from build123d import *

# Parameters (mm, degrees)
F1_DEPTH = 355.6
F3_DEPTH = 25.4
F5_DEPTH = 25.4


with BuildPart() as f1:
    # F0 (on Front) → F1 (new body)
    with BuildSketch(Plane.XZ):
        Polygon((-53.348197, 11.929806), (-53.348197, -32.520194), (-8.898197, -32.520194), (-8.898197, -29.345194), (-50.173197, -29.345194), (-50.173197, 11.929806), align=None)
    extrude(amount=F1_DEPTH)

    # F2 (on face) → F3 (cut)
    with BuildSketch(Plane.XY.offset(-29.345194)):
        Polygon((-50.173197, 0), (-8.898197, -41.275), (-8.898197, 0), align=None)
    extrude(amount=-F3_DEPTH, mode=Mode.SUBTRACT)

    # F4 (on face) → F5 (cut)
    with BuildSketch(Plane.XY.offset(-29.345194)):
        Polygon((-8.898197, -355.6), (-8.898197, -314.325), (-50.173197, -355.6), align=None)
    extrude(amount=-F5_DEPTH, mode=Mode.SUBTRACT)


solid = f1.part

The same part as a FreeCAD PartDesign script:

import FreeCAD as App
import Part
import Sketcher
Q = App.Units.Quantity


def add_polygon(sketch, points):
    """Adds a closed chain of lines whose ends are joined by coincident constraints."""
    first, n = sketch.GeometryCount, len(points)
    for a, b in zip(points, points[1:] + points[:1]):
        sketch.addGeometry(Part.LineSegment(App.Vector(*a, 0), App.Vector(*b, 0)), False)
    for i in range(n):
        sketch.addConstraint(Sketcher.Constraint("Coincident", first + i, 2, first + (i + 1) % n, 1))

doc = App.newDocument("Part")
body = doc.addObject("PartDesign::Body", "Body")

# Sketch on XZ plane
sketch1 = body.newObject("Sketcher::SketchObject", "Sketch")
sketch1.AttachmentSupport = (doc.getObject("XZ_Plane"), [""])
sketch1.MapMode = "FlatFace"
add_polygon(sketch1, [(-53.3, 11.9), (-53.3, -32.5), (-8.9, -32.5), (-8.9, -29.3), (-50.2, -29.3), (-50.2, 11.9)])  # lines 0-5
sketch1.addConstraint([
    Sketcher.Constraint("Vertical", 0),
    Sketcher.Constraint("Horizontal", 1),
    Sketcher.Constraint("Vertical", 2),
    Sketcher.Constraint("Horizontal", 3),
    Sketcher.Constraint("Vertical", 4),
    Sketcher.Constraint("Horizontal", 5),
    Sketcher.Constraint("Equal", 1, 0),
    Sketcher.Constraint("Equal", 5, 2),
    Sketcher.Constraint("DistanceX", 1, 1, 1, 2, Q("1.75 in")),
    Sketcher.Constraint("DistanceX", 3, 2, 3, 1, Q("1.625 in")),
    Sketcher.Constraint("DistanceX", 0, 2, -1, 1, Q("53.348197 mm")),
    Sketcher.Constraint("DistanceY", 0, 2, -1, 1, Q("32.520194 mm")),
])
pad1 = body.newObject("PartDesign::Pad", "Pad")
pad1.Profile = sketch1
pad1.Length = Q("14 in")

# Sketch on XY plane
sketch2 = body.newObject("Sketcher::SketchObject", "Sketch001")
sketch2.AttachmentSupport = (doc.getObject("XY_Plane"), [""])
sketch2.MapMode = "FlatFace"
sketch2.AttachmentOffset = App.Placement(App.Vector(0, 0, -29.345194), App.Rotation())
add_polygon(sketch2, [(-50, 0), (-9, -41), (-9, 0)])  # lines 0-2
sketch2.addConstraint([
    Sketcher.Constraint("Vertical", 1),
    Sketcher.Constraint("Horizontal", 2),
    Sketcher.Constraint("PointOnObject", 1, 2, -1),
    Sketcher.Constraint("Equal", 2, 1),
    Sketcher.Constraint("DistanceX", 2, 2, 2, 1, Q("1.625 in")),
    Sketcher.Constraint("DistanceX", 0, 2, -1, 1, Q("8.898197 mm")),
])
pocket1 = body.newObject("PartDesign::Pocket", "Pocket")
pocket1.Profile = sketch2
pocket1.Length = Q("1 in")

# Sketch on XY plane
sketch3 = body.newObject("Sketcher::SketchObject", "Sketch002")
sketch3.AttachmentSupport = (doc.getObject("XY_Plane"), [""])
sketch3.MapMode = "FlatFace"
sketch3.AttachmentOffset = App.Placement(App.Vector(0, 0, -29.345194), App.Rotation())
add_polygon(sketch3, [(-9, -356), (-9, -314), (-50, -356)])  # lines 0-2
sketch3.addConstraint([
    Sketcher.Constraint("Vertical", 0),
    Sketcher.Constraint("Horizontal", 2),
    Sketcher.Constraint("Equal", 2, 0),
    Sketcher.Constraint("DistanceY", 1, 2, -1, 1, Q("14 in")),
    Sketcher.Constraint("DistanceX", 2, 1, 2, 2, Q("1.625 in")),
    Sketcher.Constraint("DistanceX", 0, 2, -1, 1, Q("8.898197 mm")),
])
pocket2 = body.newObject("PartDesign::Pocket", "Pocket001")
pocket2.Profile = sketch3
pocket2.Length = Q("1 in")

doc.recompute()
